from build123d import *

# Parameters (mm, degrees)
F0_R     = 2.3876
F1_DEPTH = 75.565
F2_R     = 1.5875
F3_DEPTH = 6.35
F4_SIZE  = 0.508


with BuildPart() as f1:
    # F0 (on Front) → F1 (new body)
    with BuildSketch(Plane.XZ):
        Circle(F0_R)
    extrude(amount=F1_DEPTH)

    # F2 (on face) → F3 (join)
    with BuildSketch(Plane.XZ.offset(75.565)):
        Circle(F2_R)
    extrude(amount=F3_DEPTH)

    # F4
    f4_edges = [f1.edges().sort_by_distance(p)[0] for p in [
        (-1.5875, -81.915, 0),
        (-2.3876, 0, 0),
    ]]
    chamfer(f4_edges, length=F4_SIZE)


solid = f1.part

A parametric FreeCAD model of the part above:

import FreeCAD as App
import Part
import Sketcher
Q = App.Units.Quantity


def edges_at(feature, points):
    """Names of the edges that pass closest to the given points."""
    edges = feature.Shape.Edges
    near = lambda p: min(range(len(edges)), key=lambda i: edges[i].distToShape(Part.Vertex(*p))[0])
    return sorted({f"Edge{near(p) + 1}" for p in points})

doc = App.newDocument("Part")
body = doc.addObject("PartDesign::Body", "Body")

# Sketch on XZ plane
sketch1 = body.newObject("Sketcher::SketchObject", "Sketch")
sketch1.AttachmentSupport = (doc.getObject("XZ_Plane"), [""])
sketch1.MapMode = "FlatFace"
sketch1.addGeometry(Part.Circle(App.Vector(0, 0, 0), App.Vector(0, 0, 1), 2.3876), False)
sketch1.addConstraint(Sketcher.Constraint("Coincident", 0, 3, -1, 1))
sketch1.addConstraint(Sketcher.Constraint("Diameter", 0, Q("0.188 in")))
pad1 = body.newObject("PartDesign::Pad", "Pad")
pad1.Profile = sketch1
pad1.Length = Q("2.975 in")

# Sketch on XZ plane
sketch2 = body.newObject("Sketcher::SketchObject", "Sketch001")
sketch2.AttachmentSupport = (doc.getObject("XZ_Plane"), [""])
sketch2.MapMode = "FlatFace"
sketch2.AttachmentOffset = App.Placement(App.Vector(0, 0, 2.975 * 25.4), App.Rotation())
sketch2.addGeometry(Part.Circle(App.Vector(0, 0, 0), App.Vector(0, 0, 1), 1.5875), False)
sketch2.addConstraint(Sketcher.Constraint("Coincident", 0, 3, -1, 1))
sketch2.addConstraint(Sketcher.Constraint("Diameter", 0, Q("0.125 in")))
pad2 = body.newObject("PartDesign::Pad", "Pad001")
pad2.Profile = sketch2
pad2.Length = Q("0.25 in")
doc.recompute()

chamfer = body.newObject("PartDesign::Chamfer", "Chamfer")
chamfer.Base = (pad2, edges_at(pad2, [(-1.587, -81.915, 0), (-2.388, 0, 0)]))
chamfer.Size = Q("0.02 in")

doc.recompute()
